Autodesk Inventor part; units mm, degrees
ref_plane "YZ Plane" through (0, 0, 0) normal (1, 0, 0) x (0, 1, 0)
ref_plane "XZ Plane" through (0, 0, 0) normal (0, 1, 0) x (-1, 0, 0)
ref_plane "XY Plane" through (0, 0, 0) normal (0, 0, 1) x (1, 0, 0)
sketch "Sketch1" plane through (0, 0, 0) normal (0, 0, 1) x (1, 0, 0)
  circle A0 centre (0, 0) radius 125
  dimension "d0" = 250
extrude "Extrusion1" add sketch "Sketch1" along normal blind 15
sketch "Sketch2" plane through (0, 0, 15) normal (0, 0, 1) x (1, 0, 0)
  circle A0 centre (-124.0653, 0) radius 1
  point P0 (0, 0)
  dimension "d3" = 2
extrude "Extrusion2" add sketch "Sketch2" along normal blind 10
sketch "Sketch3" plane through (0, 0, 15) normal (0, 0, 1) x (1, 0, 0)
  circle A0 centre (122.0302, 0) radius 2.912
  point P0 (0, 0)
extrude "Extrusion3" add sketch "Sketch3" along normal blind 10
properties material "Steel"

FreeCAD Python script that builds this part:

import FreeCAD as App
import Part
import Sketcher
from FreeCAD import Vector

doc = App.newDocument("Part")
body = doc.addObject("PartDesign::Body", "Body")

sketch1 = body.newObject("Sketcher::SketchObject", "Sketch")
sketch1.AttachmentSupport = (doc.getObject("XY_Plane"), [""])
sketch1.MapMode = "FlatFace"
sketch1.addGeometry(Part.Circle(Vector(0, 0, 0), Vector(0, 0, 1), 125), False)
sketch1.addConstraint([
    Sketcher.Constraint("Coincident", 0, 3, -1, 1),
    Sketcher.Constraint("Diameter", 0, 250.0),
])
pad1 = body.newObject("PartDesign::Pad", "Pad")
pad1.Profile = sketch1
pad1.Length = 15

sketch2 = body.newObject("Sketcher::SketchObject", "Sketch001")
sketch2.AttachmentSupport = (doc.getObject("XY_Plane"), [""])
sketch2.MapMode = "FlatFace"
sketch2.AttachmentOffset = App.Placement(Vector(0, 0, 15), App.Rotation())
sketch2.addGeometry(Part.Circle(Vector(-124.0653, 0, 0), Vector(0, 0, 1), 1), False)
sketch2.addConstraint([
    Sketcher.Constraint("PointOnObject", 0, 3, -1),
    Sketcher.Constraint("Diameter", 0, 2.0),
    Sketcher.Constraint("DistanceX", 0, 3, -1, 1, 124.0653),
])
pad2 = body.newObject("PartDesign::Pad", "Pad001")
pad2.Profile = sketch2
pad2.Length = 10

sketch3 = body.newObject("Sketcher::SketchObject", "Sketch002")
sketch3.AttachmentSupport = (doc.getObject("XY_Plane"), [""])
sketch3.MapMode = "FlatFace"
sketch3.AttachmentOffset = App.Placement(Vector(0, 0, 15), App.Rotation())
sketch3.addGeometry(Part.Circle(Vector(122.0302, 0, 0), Vector(0, 0, 1), 2.912), False)
sketch3.addConstraint([
    Sketcher.Constraint("PointOnObject", 0, 3, -1),
    Sketcher.Constraint("Diameter", 0, 5.824),
    Sketcher.Constraint("DistanceX", -1, 1, 0, 3, 122.0302),
])
pad3 = body.newObject("PartDesign::Pad", "Pad002")
pad3.Profile = sketch3
pad3.Length = 10

doc.recompute()
